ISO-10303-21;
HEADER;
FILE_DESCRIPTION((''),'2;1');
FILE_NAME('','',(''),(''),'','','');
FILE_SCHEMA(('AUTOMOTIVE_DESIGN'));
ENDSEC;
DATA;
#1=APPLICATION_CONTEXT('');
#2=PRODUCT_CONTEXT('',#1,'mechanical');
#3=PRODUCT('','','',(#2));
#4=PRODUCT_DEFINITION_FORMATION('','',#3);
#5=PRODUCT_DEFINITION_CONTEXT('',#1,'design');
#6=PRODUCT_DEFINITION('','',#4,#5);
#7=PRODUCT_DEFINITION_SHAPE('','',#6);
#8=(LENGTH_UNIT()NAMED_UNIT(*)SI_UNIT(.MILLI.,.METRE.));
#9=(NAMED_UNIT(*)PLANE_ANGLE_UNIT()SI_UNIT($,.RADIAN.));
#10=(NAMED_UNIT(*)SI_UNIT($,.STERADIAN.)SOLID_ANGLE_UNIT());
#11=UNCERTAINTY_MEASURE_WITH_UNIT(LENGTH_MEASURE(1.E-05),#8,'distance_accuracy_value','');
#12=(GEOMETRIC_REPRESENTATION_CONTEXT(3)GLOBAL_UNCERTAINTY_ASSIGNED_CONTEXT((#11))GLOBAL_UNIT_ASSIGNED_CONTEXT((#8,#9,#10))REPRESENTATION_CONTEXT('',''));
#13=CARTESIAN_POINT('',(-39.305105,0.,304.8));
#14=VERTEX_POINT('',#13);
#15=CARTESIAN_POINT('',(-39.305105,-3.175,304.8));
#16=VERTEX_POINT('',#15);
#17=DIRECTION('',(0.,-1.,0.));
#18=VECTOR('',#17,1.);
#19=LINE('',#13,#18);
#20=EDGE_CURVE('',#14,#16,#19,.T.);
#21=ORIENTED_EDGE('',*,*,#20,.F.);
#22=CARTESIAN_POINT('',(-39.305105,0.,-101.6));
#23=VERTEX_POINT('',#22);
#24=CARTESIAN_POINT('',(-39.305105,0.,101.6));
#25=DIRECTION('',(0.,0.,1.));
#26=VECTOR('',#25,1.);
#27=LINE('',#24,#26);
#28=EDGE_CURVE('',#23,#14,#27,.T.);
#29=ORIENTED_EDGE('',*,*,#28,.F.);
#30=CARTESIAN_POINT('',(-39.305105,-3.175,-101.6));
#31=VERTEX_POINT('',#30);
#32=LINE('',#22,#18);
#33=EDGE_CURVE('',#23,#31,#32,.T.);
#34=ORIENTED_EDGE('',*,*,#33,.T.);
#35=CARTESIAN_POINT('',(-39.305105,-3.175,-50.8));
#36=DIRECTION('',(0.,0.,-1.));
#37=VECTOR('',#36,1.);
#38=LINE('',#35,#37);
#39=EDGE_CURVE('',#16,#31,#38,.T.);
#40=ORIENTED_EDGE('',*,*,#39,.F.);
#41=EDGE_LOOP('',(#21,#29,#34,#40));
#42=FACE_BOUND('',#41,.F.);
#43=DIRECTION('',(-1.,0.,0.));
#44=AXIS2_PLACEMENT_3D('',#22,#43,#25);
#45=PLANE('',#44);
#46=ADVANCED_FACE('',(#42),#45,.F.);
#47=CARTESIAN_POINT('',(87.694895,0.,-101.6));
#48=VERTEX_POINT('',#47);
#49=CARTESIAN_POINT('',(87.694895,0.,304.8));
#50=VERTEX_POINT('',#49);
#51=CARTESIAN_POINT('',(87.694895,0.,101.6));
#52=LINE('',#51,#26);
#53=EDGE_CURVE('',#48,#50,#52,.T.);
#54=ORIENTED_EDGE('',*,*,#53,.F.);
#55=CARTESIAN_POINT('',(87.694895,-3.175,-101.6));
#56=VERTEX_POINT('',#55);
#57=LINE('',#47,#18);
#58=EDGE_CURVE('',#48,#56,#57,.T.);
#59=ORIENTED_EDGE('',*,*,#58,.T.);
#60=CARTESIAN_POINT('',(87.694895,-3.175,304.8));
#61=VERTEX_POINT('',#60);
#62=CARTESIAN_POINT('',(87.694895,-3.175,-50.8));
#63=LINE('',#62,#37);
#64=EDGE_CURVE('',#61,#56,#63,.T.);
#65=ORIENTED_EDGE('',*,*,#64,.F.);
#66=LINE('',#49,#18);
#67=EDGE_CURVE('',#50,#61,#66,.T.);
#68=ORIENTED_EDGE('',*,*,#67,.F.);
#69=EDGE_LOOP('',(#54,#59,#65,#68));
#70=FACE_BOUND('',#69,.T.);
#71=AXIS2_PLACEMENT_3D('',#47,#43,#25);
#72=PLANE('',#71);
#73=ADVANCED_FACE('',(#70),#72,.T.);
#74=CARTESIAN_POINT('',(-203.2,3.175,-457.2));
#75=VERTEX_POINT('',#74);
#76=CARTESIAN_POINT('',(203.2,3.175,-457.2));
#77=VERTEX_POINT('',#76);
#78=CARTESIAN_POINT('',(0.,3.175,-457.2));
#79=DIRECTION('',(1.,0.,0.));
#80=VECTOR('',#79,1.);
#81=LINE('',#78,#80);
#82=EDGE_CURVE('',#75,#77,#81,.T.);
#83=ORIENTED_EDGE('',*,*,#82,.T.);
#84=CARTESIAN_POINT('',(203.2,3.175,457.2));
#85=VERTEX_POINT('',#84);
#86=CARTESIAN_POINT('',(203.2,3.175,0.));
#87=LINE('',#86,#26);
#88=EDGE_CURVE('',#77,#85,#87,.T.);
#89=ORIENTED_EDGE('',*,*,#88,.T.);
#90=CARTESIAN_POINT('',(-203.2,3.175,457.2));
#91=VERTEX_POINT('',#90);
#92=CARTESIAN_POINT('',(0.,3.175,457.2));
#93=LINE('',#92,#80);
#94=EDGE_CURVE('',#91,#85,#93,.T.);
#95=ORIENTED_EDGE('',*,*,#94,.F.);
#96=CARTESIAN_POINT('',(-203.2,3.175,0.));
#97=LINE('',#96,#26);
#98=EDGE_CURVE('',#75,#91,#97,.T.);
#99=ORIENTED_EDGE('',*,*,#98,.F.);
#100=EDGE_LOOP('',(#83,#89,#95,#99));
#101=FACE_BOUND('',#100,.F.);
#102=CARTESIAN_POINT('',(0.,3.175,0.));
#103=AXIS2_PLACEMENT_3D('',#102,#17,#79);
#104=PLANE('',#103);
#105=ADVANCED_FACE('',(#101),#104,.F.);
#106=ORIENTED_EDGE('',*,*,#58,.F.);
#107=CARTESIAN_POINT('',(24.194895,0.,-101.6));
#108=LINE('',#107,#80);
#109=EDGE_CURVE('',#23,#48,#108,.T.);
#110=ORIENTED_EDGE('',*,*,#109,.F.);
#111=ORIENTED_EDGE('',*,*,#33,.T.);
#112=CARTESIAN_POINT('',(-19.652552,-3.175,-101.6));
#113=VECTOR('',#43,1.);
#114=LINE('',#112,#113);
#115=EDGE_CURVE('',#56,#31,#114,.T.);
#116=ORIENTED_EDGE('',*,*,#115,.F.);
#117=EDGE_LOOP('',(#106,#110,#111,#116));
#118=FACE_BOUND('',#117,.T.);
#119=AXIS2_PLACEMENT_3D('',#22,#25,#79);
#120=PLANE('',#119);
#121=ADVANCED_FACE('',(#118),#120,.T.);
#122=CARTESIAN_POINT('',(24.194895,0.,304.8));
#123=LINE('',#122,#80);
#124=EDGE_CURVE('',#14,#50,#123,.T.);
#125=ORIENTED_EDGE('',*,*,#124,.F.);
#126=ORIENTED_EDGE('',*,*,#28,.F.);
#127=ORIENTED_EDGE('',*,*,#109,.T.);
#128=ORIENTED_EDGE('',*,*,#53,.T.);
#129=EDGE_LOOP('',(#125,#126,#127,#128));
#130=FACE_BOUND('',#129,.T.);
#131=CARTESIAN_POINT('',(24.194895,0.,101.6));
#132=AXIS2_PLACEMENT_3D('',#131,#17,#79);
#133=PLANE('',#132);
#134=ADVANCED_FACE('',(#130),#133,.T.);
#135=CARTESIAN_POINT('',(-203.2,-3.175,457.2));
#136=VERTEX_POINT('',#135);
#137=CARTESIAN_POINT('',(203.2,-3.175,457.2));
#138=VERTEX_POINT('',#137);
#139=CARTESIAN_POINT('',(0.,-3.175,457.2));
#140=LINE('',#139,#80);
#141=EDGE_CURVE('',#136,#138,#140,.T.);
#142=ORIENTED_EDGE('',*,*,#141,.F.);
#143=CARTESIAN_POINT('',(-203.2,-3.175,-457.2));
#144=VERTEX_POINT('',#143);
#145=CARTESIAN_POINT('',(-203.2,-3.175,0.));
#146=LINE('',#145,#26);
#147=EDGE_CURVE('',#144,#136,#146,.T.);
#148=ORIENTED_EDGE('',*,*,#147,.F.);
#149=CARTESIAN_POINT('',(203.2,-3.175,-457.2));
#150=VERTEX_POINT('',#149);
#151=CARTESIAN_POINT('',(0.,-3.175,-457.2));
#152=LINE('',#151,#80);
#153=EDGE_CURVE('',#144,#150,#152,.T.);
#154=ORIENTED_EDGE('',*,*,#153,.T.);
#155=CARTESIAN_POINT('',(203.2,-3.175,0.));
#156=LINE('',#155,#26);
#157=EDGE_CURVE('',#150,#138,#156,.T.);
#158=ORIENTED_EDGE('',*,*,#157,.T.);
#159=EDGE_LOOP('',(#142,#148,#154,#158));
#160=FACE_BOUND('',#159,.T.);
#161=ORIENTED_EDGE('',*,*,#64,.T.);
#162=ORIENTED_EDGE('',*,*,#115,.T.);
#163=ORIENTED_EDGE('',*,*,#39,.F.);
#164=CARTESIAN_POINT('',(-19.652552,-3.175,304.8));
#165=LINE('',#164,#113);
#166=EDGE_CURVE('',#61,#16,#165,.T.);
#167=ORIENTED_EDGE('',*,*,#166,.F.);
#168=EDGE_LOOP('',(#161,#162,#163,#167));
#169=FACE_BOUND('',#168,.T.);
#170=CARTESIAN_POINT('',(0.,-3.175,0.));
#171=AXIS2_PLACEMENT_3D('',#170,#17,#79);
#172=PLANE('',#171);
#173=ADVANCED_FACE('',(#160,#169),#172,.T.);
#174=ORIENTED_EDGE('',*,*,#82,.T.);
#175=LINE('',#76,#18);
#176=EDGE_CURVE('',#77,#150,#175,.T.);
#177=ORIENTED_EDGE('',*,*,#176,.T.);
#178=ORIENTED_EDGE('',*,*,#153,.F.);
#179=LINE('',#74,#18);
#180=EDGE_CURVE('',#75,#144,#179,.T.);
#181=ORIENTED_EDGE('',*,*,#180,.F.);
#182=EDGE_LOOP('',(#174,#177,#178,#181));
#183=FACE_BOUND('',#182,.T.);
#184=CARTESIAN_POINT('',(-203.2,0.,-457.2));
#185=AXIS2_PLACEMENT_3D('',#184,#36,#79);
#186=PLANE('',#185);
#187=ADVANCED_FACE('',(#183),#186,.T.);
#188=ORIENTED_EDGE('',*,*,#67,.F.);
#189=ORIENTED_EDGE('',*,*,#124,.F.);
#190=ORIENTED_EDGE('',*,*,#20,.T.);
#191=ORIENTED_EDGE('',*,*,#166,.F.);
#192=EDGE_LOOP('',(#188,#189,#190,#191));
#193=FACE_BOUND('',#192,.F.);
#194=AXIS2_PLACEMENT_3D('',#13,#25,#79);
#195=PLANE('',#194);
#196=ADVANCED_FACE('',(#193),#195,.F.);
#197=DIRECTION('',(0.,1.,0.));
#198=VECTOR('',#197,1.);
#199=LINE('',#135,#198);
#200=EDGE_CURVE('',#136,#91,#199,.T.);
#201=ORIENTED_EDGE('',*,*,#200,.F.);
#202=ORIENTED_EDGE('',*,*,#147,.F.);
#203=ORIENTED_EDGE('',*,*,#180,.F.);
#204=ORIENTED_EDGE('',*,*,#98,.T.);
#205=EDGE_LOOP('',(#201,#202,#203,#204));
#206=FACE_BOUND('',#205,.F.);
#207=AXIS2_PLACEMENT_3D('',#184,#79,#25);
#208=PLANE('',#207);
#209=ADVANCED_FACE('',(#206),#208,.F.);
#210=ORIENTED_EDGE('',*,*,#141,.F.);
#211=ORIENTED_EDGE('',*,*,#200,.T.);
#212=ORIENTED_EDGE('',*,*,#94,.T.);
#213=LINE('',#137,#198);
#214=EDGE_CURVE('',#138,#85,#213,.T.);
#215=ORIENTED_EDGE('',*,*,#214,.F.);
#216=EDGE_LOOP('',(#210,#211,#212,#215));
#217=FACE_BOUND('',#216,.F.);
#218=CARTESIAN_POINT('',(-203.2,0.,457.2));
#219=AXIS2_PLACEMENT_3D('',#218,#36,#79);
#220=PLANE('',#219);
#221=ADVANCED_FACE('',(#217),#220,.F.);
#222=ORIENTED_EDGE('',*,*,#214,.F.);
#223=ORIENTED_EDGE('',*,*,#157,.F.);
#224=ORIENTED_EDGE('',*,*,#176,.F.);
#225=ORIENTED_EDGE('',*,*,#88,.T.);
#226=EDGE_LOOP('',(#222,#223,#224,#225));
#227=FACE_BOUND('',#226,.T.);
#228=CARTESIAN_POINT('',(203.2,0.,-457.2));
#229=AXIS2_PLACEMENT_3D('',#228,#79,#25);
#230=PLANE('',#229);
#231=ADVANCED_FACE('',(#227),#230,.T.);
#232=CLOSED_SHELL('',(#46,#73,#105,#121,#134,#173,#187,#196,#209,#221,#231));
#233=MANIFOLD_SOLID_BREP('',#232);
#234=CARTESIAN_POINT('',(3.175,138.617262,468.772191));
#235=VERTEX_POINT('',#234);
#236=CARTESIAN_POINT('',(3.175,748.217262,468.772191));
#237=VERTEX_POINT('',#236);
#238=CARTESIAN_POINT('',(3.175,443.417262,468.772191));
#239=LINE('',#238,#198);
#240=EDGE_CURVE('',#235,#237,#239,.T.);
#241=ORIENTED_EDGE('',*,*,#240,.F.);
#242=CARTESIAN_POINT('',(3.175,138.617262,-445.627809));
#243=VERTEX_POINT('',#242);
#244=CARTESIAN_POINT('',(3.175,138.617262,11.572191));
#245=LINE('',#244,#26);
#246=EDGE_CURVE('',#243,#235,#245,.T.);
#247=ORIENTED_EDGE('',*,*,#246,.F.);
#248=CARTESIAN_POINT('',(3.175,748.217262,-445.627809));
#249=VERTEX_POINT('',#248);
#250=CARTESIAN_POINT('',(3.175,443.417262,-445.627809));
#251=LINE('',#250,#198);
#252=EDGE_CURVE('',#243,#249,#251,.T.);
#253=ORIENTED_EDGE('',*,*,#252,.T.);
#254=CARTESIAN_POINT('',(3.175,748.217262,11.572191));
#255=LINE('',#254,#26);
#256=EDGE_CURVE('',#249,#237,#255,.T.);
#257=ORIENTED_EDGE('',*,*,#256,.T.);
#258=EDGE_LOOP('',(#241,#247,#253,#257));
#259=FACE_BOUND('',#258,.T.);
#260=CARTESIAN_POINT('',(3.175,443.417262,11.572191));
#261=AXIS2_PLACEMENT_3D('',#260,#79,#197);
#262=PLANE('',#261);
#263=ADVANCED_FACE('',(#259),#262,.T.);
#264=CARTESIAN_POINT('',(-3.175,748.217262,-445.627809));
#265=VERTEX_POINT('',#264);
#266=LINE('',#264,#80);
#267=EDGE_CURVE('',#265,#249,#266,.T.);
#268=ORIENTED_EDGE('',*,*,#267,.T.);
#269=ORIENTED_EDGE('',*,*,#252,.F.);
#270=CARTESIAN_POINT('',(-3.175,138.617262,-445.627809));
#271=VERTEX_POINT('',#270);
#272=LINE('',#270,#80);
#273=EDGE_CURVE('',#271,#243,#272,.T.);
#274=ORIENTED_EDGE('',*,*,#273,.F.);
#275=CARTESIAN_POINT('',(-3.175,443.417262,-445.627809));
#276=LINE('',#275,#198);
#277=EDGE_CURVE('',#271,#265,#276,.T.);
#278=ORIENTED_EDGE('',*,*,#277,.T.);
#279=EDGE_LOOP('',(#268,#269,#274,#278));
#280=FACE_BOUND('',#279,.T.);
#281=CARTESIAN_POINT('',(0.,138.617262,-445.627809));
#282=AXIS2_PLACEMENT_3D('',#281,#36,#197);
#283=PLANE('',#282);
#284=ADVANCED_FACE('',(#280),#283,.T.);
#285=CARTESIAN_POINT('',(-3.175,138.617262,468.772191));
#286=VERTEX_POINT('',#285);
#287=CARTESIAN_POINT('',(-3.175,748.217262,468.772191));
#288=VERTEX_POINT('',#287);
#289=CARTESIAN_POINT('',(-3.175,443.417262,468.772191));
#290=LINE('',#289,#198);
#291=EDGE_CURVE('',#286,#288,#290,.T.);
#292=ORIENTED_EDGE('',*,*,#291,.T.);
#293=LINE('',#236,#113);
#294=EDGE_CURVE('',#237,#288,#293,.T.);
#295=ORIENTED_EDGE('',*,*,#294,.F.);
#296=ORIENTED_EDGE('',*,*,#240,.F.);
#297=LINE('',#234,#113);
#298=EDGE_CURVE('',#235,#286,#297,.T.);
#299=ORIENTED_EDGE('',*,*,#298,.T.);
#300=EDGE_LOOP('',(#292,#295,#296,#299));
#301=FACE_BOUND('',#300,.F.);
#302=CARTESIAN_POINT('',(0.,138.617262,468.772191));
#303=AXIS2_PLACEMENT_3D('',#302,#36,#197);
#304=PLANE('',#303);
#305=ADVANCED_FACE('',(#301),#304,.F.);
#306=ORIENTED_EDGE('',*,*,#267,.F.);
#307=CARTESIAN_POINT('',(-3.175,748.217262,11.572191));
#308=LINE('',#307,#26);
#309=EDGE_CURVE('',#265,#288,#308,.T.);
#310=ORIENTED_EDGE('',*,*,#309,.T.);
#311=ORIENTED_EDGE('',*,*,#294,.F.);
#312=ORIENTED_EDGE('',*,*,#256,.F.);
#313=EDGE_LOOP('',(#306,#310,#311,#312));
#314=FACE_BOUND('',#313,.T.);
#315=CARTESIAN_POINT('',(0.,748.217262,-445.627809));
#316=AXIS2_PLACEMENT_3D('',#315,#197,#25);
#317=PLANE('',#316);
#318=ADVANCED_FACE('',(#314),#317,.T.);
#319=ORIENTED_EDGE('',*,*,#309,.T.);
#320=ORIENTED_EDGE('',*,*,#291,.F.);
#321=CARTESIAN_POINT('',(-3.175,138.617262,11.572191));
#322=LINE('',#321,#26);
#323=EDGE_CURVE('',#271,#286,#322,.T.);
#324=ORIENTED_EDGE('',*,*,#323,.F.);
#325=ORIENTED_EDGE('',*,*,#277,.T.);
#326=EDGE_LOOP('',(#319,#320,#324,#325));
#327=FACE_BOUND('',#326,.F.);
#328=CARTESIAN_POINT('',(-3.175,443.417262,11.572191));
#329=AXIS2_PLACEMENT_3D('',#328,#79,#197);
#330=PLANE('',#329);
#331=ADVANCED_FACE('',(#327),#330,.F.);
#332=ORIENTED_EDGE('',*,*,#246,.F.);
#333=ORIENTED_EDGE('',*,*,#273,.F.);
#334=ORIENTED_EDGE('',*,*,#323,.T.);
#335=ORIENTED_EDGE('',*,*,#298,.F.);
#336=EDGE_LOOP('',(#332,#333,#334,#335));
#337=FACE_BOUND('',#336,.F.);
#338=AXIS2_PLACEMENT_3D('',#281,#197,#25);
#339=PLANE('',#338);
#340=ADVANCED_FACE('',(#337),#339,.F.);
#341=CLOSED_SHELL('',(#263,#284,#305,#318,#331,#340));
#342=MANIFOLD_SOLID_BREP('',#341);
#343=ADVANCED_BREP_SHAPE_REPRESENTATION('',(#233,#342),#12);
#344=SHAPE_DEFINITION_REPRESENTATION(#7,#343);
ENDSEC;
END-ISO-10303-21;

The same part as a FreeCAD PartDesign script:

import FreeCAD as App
import Part
import Sketcher

V = App.Vector
Q = App.Units.Quantity


def add_polygon(sketch, points):
    """Adds a closed chain of lines whose ends are joined by coincident constraints."""
    first, n = sketch.GeometryCount, len(points)
    for a, b in zip(points, points[1:] + points[:1]):
        sketch.addGeometry(Part.LineSegment(App.Vector(*a, 0), App.Vector(*b, 0)), False)
    for i in range(n):
        sketch.addConstraint(Sketcher.Constraint("Coincident", first + i, 2, first + (i + 1) % n, 1))

doc = App.newDocument("Part")
body = doc.addObject("PartDesign::Body", "Body")

# Sketch on XZ plane
sketch1 = body.newObject("Sketcher::SketchObject", "Sketch")
sketch1.AttachmentSupport = (doc.getObject("XZ_Plane"), [""])
sketch1.MapMode = "FlatFace"
add_polygon(sketch1, [(-203, 457), (-203, -457), (203, -457), (203, 457)])  # lines 0-3
sketch1.addConstraint(Sketcher.Constraint("Vertical", 0))
sketch1.addConstraint(Sketcher.Constraint("Horizontal", 1))
sketch1.addConstraint(Sketcher.Constraint("Vertical", 2))
sketch1.addConstraint(Sketcher.Constraint("Horizontal", 3))
sketch1.addConstraint(Sketcher.Constraint("Symmetric", 0, 2, 2, 2, -1, 1))
sketch1.addConstraint(Sketcher.Constraint("DistanceX", 1, 1, 1, 2, Q("16 in")))
sketch1.addConstraint(Sketcher.Constraint("DistanceY", 0, 2, 0, 1, Q("36 in")))
pad1 = body.newObject("PartDesign::Pad", "Pad")
pad1.Profile = sketch1
pad1.Length = Q("0.25 in")
pad1.Midplane = True

# Sketch on XZ plane
sketch2 = body.newObject("Sketcher::SketchObject", "Sketch001")
sketch2.AttachmentSupport = (doc.getObject("XZ_Plane"), [""])
sketch2.MapMode = "FlatFace"
add_polygon(sketch2, [(-39, 305), (-39, -102), (88, -102), (88, 305)])  # lines 0-3
sketch2.addConstraint(Sketcher.Constraint("Vertical", 0))
sketch2.addConstraint(Sketcher.Constraint("Horizontal", 1))
sketch2.addConstraint(Sketcher.Constraint("Vertical", 2))
sketch2.addConstraint(Sketcher.Constraint("Horizontal", 3))
sketch2.addConstraint(Sketcher.Constraint("DistanceX", 1, 1, 1, 2, Q("5 in")))
sketch2.addConstraint(Sketcher.Constraint("DistanceY", 0, 2, 0, 1, Q("16 in")))
sketch2.addConstraint(Sketcher.Constraint("DistanceY", 0, 2, -1, 1, Q("4 in")))
sketch2.addConstraint(Sketcher.Constraint("DistanceX", 0, 2, -1, 1, 39.305105))
pocket1 = body.newObject("PartDesign::Pocket", "Pocket")
pocket1.Profile = sketch2
pocket1.Type = "ThroughAll"
pocket1.Reversed = True
body2 = doc.addObject("PartDesign::Body", "Body001")

# Sketch on YZ plane
sketch3 = body2.newObject("Sketcher::SketchObject", "Sketch002")
sketch3.AttachmentSupport = (doc.getObject("YZ_Plane001"), [""])
sketch3.MapMode = "FlatFace"
add_polygon(sketch3, [(139, 469), (139, -446), (748, -446), (748, 469)])  # lines 0-3
sketch3.addConstraint(Sketcher.Constraint("Vertical", 0))
sketch3.addConstraint(Sketcher.Constraint("Horizontal", 1))
sketch3.addConstraint(Sketcher.Constraint("Vertical", 2))
sketch3.addConstraint(Sketcher.Constraint("Horizontal", 3))
sketch3.addConstraint(Sketcher.Constraint("DistanceX", 1, 1, 1, 2, Q("24 in")))
sketch3.addConstraint(Sketcher.Constraint("DistanceY", 0, 2, 0, 1, Q("36 in")))
sketch3.addConstraint(Sketcher.Constraint("DistanceY", 0, 2, -1, 1, 445.627809))
sketch3.addConstraint(Sketcher.Constraint("DistanceX", -1, 1, 1, 2, 748.217262))
pad2 = body2.newObject("PartDesign::Pad", "Pad001")
pad2.Profile = sketch3
pad2.Length = Q("0.25 in")
pad2.Midplane = True

doc.recompute()
